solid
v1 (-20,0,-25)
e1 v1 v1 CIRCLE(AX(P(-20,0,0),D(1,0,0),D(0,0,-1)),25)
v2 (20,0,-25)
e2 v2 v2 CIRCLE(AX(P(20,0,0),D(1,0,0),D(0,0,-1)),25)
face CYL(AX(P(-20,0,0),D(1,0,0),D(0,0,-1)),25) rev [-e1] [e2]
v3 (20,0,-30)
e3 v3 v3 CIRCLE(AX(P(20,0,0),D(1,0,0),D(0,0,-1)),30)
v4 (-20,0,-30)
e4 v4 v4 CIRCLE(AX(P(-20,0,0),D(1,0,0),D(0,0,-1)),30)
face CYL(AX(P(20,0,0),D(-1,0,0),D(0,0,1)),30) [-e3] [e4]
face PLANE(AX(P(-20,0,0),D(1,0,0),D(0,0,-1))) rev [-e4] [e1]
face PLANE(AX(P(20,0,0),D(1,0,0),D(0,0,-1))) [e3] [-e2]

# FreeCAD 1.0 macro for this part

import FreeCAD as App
import Part
import Sketcher
from FreeCAD import Vector
Q = App.Units.Quantity

doc = App.newDocument("Part")
params = doc.addObject("Spreadsheet::Sheet", "Params")
for row, (alias, value) in enumerate([
    ("sketch1_diameter", "60 mm"),
    ("pad1_length", "40 mm"),
    ("sketch2_diameter", "50 mm"),
], start=1):
    params.set(f"A{row}", alias)
    params.set(f"B{row}", "=" + value)
    params.setAlias(f"B{row}", alias)

body = doc.addObject("PartDesign::Body", "Body")

sketch1 = body.newObject("Sketcher::SketchObject", "Sketch")
sketch1.AttachmentSupport = (doc.getObject("YZ_Plane"), [""])
sketch1.MapMode = "FlatFace"
sketch1.addGeometry(Part.Circle(Vector(0, 0, 0), Vector(0, 0, 1), 30), False)
sketch1.addConstraint([
    Sketcher.Constraint("Coincident", 0, 3, -1, 1),
    Sketcher.Constraint("Diameter", 0, Q("60 mm")),
])
sketch1.setExpression("Constraints[1]", "Params.sketch1_diameter")
pad1 = body.newObject("PartDesign::Pad", "Pad")
pad1.Profile = sketch1
pad1.setExpression("Length", "Params.pad1_length")
pad1.Midplane = True

sketch2 = body.newObject("Sketcher::SketchObject", "Sketch001")
sketch2.AttachmentSupport = (doc.getObject("YZ_Plane"), [""])
sketch2.MapMode = "FlatFace"
sketch2.AttachmentOffset = App.Placement(Vector(0, 0, 20), App.Rotation())
sketch2.addGeometry(Part.Circle(Vector(0, 0, 0), Vector(0, 0, 1), 25), False)
sketch2.addConstraint([
    Sketcher.Constraint("Coincident", 0, 3, -1, 1),
    Sketcher.Constraint("Diameter", 0, Q("50 mm")),
])
sketch2.setExpression("Constraints[1]", "Params.sketch2_diameter")
pocket1 = body.newObject("PartDesign::Pocket", "Pocket")
pocket1.Profile = sketch2
pocket1.Type = "ThroughAll"

doc.recompute()
